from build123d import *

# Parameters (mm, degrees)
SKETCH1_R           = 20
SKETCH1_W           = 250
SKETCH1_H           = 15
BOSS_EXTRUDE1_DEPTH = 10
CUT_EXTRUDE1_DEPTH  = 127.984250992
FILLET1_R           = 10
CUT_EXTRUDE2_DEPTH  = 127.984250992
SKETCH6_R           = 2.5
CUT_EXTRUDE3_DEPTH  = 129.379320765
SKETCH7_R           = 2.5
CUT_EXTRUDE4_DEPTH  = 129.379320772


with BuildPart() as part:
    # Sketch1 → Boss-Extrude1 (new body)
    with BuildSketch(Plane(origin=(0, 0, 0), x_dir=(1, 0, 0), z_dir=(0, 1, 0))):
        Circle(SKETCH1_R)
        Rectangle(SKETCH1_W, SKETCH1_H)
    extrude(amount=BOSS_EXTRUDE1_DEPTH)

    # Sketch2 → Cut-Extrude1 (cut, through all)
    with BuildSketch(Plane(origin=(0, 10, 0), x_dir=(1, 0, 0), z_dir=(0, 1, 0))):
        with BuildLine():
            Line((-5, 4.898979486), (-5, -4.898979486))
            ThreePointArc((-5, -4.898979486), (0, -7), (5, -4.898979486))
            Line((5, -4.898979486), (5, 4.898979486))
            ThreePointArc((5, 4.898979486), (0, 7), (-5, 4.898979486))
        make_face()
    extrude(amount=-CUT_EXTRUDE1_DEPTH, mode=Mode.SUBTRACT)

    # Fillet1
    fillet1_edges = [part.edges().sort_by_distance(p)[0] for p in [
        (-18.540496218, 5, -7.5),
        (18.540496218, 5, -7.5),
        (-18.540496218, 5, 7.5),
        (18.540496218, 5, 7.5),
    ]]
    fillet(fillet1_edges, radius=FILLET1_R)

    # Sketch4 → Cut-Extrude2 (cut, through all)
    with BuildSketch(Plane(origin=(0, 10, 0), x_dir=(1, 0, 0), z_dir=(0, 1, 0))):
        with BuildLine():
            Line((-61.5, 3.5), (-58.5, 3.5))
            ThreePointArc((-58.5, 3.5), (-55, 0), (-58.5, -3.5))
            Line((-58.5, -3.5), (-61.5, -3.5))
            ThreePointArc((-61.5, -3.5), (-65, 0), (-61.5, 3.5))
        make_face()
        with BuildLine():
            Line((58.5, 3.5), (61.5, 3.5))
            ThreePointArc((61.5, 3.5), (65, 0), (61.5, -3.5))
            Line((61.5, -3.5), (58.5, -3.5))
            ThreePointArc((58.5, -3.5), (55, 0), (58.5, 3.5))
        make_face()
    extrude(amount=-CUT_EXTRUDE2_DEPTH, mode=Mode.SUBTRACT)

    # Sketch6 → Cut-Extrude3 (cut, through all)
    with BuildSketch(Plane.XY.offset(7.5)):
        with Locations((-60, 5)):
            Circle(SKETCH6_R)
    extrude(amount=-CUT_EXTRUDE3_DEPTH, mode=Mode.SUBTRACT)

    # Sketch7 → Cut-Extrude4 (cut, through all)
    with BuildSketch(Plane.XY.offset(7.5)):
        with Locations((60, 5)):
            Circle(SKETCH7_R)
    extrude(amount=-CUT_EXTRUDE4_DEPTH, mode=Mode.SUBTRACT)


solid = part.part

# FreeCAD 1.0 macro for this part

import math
import FreeCAD as App
import Part
import Sketcher

V = App.Vector
Q = App.Units.Quantity


def edges_at(feature, points):
    """Names of the edges that pass closest to the given points."""
    edges = feature.Shape.Edges
    near = lambda p: min(range(len(edges)), key=lambda i: edges[i].distToShape(Part.Vertex(*p))[0])
    return sorted({f"Edge{near(p) + 1}" for p in points})

doc = App.newDocument("Part")
body = doc.addObject("PartDesign::Body", "Body")

# Sketch on XZ plane
sketch1 = body.newObject("Sketcher::SketchObject", "Sketch")
sketch1.AttachmentSupport = (doc.getObject("XZ_Plane"), [""])
sketch1.MapMode = "FlatFace"
sketch1.addGeometry([
    Part.LineSegment(V(19, 8, 0), V(125, 8, 0)),  # 0
    Part.LineSegment(V(125, 8, 0), V(125, -8, 0)),  # 1
    Part.LineSegment(V(125, -8, 0), V(19, -8, 0)),  # 2
    Part.ArcOfCircle(Part.Circle(V(0, 0, 0), V(0, 0, 1), 20), math.radians(-158), math.radians(-22)),  # 3
    Part.LineSegment(V(-19, -8, 0), V(-125, -8, 0)),  # 4
    Part.LineSegment(V(-125, -8, 0), V(-125, 8, 0)),  # 5
    Part.LineSegment(V(-125, 8, 0), V(-19, 8, 0)),  # 6
    Part.ArcOfCircle(Part.Circle(V(0, 0, 0), V(0, 0, 1), 20), math.radians(22), math.radians(158)),  # 7
], False)
sketch1.addConstraint([
    Sketcher.Constraint("Coincident", 0, 2, 1, 1),
    Sketcher.Constraint("Coincident", 1, 2, 2, 1),
    Sketcher.Constraint("Coincident", 2, 2, 3, 2),
    Sketcher.Constraint("Coincident", 3, 1, 4, 1),
    Sketcher.Constraint("Coincident", 4, 2, 5, 1),
    Sketcher.Constraint("Coincident", 5, 2, 6, 1),
    Sketcher.Constraint("Coincident", 6, 2, 7, 2),
    Sketcher.Constraint("Coincident", 7, 1, 0, 1),
    Sketcher.Constraint("Horizontal", 0),
    Sketcher.Constraint("Vertical", 1),
    Sketcher.Constraint("Horizontal", 2),
    Sketcher.Constraint("Horizontal", 4),
    Sketcher.Constraint("Vertical", 5),
    Sketcher.Constraint("Horizontal", 6),
    Sketcher.Constraint("Coincident", 3, 3, -1, 1),
    Sketcher.Constraint("Coincident", 7, 3, -1, 1),
    Sketcher.Constraint("Equal", 3, 7),
    Sketcher.Constraint("Symmetric", 0, 2, 4, 2, -1, 1),
    Sketcher.Constraint("Horizontal", 2, 2, 3, 1),
    Sketcher.Constraint("Horizontal", 0, 2, 5, 2),
    Sketcher.Constraint("Radius", 3, Q("20 mm")),
    Sketcher.Constraint("DistanceY", 1, 2, 1, 1, Q("15 mm")),
    Sketcher.Constraint("DistanceX", -1, 1, 0, 2, Q("125 mm")),
])
pad1 = body.newObject("PartDesign::Pad", "Pad")
pad1.Profile = sketch1
pad1.Length = 10
pad1.Reversed = True

# Sketch on XZ plane
sketch2 = body.newObject("Sketcher::SketchObject", "Sketch001")
sketch2.AttachmentSupport = (doc.getObject("XZ_Plane"), [""])
sketch2.MapMode = "FlatFace"
sketch2.AttachmentOffset = App.Placement(V(0, 0, -10), App.Rotation())
sketch2.addGeometry([
    Part.LineSegment(V(-5, -5, 0), V(-5, 5, 0)),
    Part.ArcOfCircle(Part.Circle(V(0, 0, 0), V(0, 0, 1), 7), math.radians(44), math.radians(136)),
    Part.LineSegment(V(5, 5, 0), V(5, -5, 0)),
    Part.ArcOfCircle(Part.Circle(V(0, 0, 0), V(0, 0, 1), 7), math.radians(-136), math.radians(-44)),
], False)
sketch2.addConstraint([
    Sketcher.Constraint("Coincident", 0, 2, 1, 2),
    Sketcher.Constraint("Coincident", 1, 1, 2, 1),
    Sketcher.Constraint("Coincident", 2, 2, 3, 2),
    Sketcher.Constraint("Coincident", 3, 1, 0, 1),
    Sketcher.Constraint("Vertical", 0),
    Sketcher.Constraint("Vertical", 2),
    Sketcher.Constraint("Coincident", 1, 3, -1, 1),
    Sketcher.Constraint("Coincident", 3, 3, -1, 1),
    Sketcher.Constraint("Equal", 1, 3),
    Sketcher.Constraint("Horizontal", 0, 2, 1, 1),
    Sketcher.Constraint("Radius", 1, Q("7 mm")),
    Sketcher.Constraint("DistanceX", 0, 2, -1, 1, Q("5 mm")),
])
pocket1 = body.newObject("PartDesign::Pocket", "Pocket")
pocket1.Profile = sketch2
pocket1.Type = "ThroughAll"
pocket1.Reversed = True
doc.recompute()

fillet = body.newObject("PartDesign::Fillet", "Fillet")
fillet.Base = (pocket1, edges_at(pocket1, [
    (-18.54, 5, -7.5),
    (18.54, 5, -7.5),
    (-18.54, 5, 7.5),
    (18.54, 5, 7.5),
]))
fillet.Radius = 10

# Sketch on XZ plane
sketch3 = body.newObject("Sketcher::SketchObject", "Sketch002")
sketch3.AttachmentSupport = (doc.getObject("XZ_Plane"), [""])
sketch3.MapMode = "FlatFace"
sketch3.AttachmentOffset = App.Placement(V(0, 0, -10), App.Rotation())
sketch3.addGeometry([
    Part.LineSegment(V(-58.5, -3.5, 0), V(-61.5, -3.5, 0)),  # 0
    Part.ArcOfCircle(Part.Circle(V(-61.5, 0, 0), V(0, 0, 1), 3.5), math.radians(90), math.radians(270)),  # 1
    Part.LineSegment(V(-61.5, 3.5, 0), V(-58.5, 3.5, 0)),  # 2
    Part.ArcOfCircle(Part.Circle(V(-58.5, 0, 0), V(0, 0, 1), 3.5), math.radians(-90), math.radians(90)),  # 3
    Part.LineSegment(V(61.5, -3.5, 0), V(58.5, -3.5, 0)),  # 4
    Part.ArcOfCircle(Part.Circle(V(58.5, 0, 0), V(0, 0, 1), 3.5), math.radians(90), math.radians(270)),  # 5
    Part.LineSegment(V(58.5, 3.5, 0), V(61.5, 3.5, 0)),  # 6
    Part.ArcOfCircle(Part.Circle(V(61.5, 0, 0), V(0, 0, 1), 3.5), math.radians(-90), math.radians(90)),  # 7
], False)
sketch3.addConstraint([
    Sketcher.Constraint("Tangent", 0, 2, 1, 2),
    Sketcher.Constraint("Tangent", 1, 1, 2, 1),
    Sketcher.Constraint("Tangent", 2, 2, 3, 2),
    Sketcher.Constraint("Tangent", 3, 1, 0, 1),
    Sketcher.Constraint("Tangent", 4, 2, 5, 2),
    Sketcher.Constraint("Tangent", 5, 1, 6, 1),
    Sketcher.Constraint("Tangent", 6, 2, 7, 2),
    Sketcher.Constraint("Tangent", 7, 1, 4, 1),
    Sketcher.Constraint("Horizontal", 0),
    Sketcher.Constraint("Horizontal", 2),
    Sketcher.Constraint("Horizontal", 4),
    Sketcher.Constraint("Horizontal", 6),
    Sketcher.Constraint("Equal", 3, 5),
    Sketcher.Constraint("Symmetric", 3, 3, 5, 3, -1, 1),
    Sketcher.Constraint("Symmetric", 1, 3, 7, 3, -2),
    Sketcher.Constraint("Radius", 1, Q("3.5 mm")),
    Sketcher.Constraint("DistanceX", 0, 2, 0, 1, Q("3 mm")),
    Sketcher.Constraint("DistanceX", 3, 3, 5, 3, Q("117 mm")),
])
pocket2 = body.newObject("PartDesign::Pocket", "Pocket001")
pocket2.Profile = sketch3
pocket2.Type = "ThroughAll"
pocket2.Reversed = True

# Sketch on XY plane
sketch4 = body.newObject("Sketcher::SketchObject", "Sketch003")
sketch4.AttachmentSupport = (doc.getObject("XY_Plane"), [""])
sketch4.MapMode = "FlatFace"
sketch4.AttachmentOffset = App.Placement(V(0, 0, 7.5), App.Rotation())
sketch4.addGeometry(Part.Circle(V(-60, 5, 0), V(0, 0, 1), 2.5), False)
sketch4.addConstraint([
    Sketcher.Constraint("Diameter", 0, Q("5 mm")),
    Sketcher.Constraint("DistanceX", 0, 3, -1, 1, Q("60 mm")),
    Sketcher.Constraint("DistanceY", -1, 1, 0, 3, Q("5 mm")),
])
pocket3 = body.newObject("PartDesign::Pocket", "Pocket002")
pocket3.Profile = sketch4
pocket3.Type = "ThroughAll"

# Sketch on XY plane
sketch5 = body.newObject("Sketcher::SketchObject", "Sketch004")
sketch5.AttachmentSupport = (doc.getObject("XY_Plane"), [""])
sketch5.MapMode = "FlatFace"
sketch5.AttachmentOffset = App.Placement(V(0, 0, 7.5), App.Rotation())
sketch5.addGeometry(Part.Circle(V(60, 5, 0), V(0, 0, 1), 2.5), False)
sketch5.addConstraint([
    Sketcher.Constraint("Diameter", 0, Q("5 mm")),
    Sketcher.Constraint("DistanceX", -1, 1, 0, 3, Q("60 mm")),
    Sketcher.Constraint("DistanceY", -1, 1, 0, 3, Q("5 mm")),
])
pocket4 = body.newObject("PartDesign::Pocket", "Pocket003")
pocket4.Profile = sketch5
pocket4.Type = "ThroughAll"

doc.recompute()
